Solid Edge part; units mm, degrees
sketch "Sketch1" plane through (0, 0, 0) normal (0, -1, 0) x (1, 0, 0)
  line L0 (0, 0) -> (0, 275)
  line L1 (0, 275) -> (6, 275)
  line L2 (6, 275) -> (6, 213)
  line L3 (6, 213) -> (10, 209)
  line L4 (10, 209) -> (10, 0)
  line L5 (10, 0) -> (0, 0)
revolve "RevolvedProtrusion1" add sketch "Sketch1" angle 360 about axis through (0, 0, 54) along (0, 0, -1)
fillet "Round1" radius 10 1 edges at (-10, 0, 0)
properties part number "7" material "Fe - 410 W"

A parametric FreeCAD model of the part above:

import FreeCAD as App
import Part
import Sketcher

V = App.Vector
Q = App.Units.Quantity


def edges_at(feature, points):
    """Names of the edges that pass closest to the given points."""
    edges = feature.Shape.Edges
    near = lambda p: min(range(len(edges)), key=lambda i: edges[i].distToShape(Part.Vertex(*p))[0])
    return sorted({f"Edge{near(p) + 1}" for p in points})

doc = App.newDocument("Part")
params = doc.addObject("Spreadsheet::Sheet", "Params")
for row, (alias, value) in enumerate([
    ("sketch1_width", "10 mm"),
    ("sketch1_width2", "6 mm"),
    ("sketch1_height", "275 mm"),
    ("sketch1_height2", "209 mm"),
    ("sketch1_height3", "62 mm"),
    ("revolution_angle", "360 deg"),
    ("fillet_radius", "10 mm"),
], start=1):
    params.set(f"A{row}", alias)
    params.set(f"B{row}", "=" + value)
    params.setAlias(f"B{row}", alias)

body = doc.addObject("PartDesign::Body", "Body")

# Sketch on XZ plane
sketch1 = body.newObject("Sketcher::SketchObject", "Sketch")
sketch1.AttachmentSupport = (doc.getObject("XZ_Plane"), [""])
sketch1.MapMode = "FlatFace"
sketch1.addGeometry([
    Part.LineSegment(V(0, 275, 0), V(0, 0, 0)),  # 0
    Part.LineSegment(V(0, 0, 0), V(10, 0, 0)),  # 1
    Part.LineSegment(V(10, 0, 0), V(10, 209, 0)),  # 2
    Part.LineSegment(V(10, 209, 0), V(6, 213, 0)),  # 3
    Part.LineSegment(V(6, 213, 0), V(6, 275, 0)),  # 4
    Part.LineSegment(V(6, 275, 0), V(0, 275, 0)),  # 5
], False)
sketch1.addConstraint([
    Sketcher.Constraint("Coincident", 0, 2, 1, 1),
    Sketcher.Constraint("Coincident", 1, 2, 2, 1),
    Sketcher.Constraint("Coincident", 2, 2, 3, 1),
    Sketcher.Constraint("Coincident", 3, 2, 4, 1),
    Sketcher.Constraint("Coincident", 4, 2, 5, 1),
    Sketcher.Constraint("Coincident", 5, 2, 0, 1),
    Sketcher.Constraint("Vertical", 0),
    Sketcher.Constraint("Horizontal", 1),
    Sketcher.Constraint("Vertical", 2),
    Sketcher.Constraint("Vertical", 4),
    Sketcher.Constraint("Horizontal", 5),
    Sketcher.Constraint("Coincident", 0, 2, -1, 1),
    Sketcher.Constraint("DistanceX", 1, 1, 1, 2, Q("10 mm")),
    Sketcher.Constraint("DistanceX", 5, 2, 5, 1, Q("6 mm")),
    Sketcher.Constraint("DistanceY", 0, 2, 0, 1, Q("275 mm")),
    Sketcher.Constraint("DistanceY", 2, 1, 2, 2, Q("209 mm")),
    Sketcher.Constraint("DistanceY", 4, 1, 4, 2, Q("62 mm")),
])
sketch1.setExpression("Constraints[12]", "Params.sketch1_width")
sketch1.setExpression("Constraints[13]", "Params.sketch1_width2")
sketch1.setExpression("Constraints[14]", "Params.sketch1_height")
sketch1.setExpression("Constraints[15]", "Params.sketch1_height2")
sketch1.setExpression("Constraints[16]", "Params.sketch1_height3")
revolution = body.newObject("PartDesign::Revolution", "Revolution")
revolution.Profile = sketch1
revolution.ReferenceAxis = (sketch1, ["V_Axis"])
revolution.setExpression("Angle", "Params.revolution_angle")
doc.recompute()

fillet = body.newObject("PartDesign::Fillet", "Fillet")
fillet.Base = (revolution, edges_at(revolution, [(-10, 0, 0)]))
fillet.setExpression("Radius", "Params.fillet_radius")

doc.recompute()
